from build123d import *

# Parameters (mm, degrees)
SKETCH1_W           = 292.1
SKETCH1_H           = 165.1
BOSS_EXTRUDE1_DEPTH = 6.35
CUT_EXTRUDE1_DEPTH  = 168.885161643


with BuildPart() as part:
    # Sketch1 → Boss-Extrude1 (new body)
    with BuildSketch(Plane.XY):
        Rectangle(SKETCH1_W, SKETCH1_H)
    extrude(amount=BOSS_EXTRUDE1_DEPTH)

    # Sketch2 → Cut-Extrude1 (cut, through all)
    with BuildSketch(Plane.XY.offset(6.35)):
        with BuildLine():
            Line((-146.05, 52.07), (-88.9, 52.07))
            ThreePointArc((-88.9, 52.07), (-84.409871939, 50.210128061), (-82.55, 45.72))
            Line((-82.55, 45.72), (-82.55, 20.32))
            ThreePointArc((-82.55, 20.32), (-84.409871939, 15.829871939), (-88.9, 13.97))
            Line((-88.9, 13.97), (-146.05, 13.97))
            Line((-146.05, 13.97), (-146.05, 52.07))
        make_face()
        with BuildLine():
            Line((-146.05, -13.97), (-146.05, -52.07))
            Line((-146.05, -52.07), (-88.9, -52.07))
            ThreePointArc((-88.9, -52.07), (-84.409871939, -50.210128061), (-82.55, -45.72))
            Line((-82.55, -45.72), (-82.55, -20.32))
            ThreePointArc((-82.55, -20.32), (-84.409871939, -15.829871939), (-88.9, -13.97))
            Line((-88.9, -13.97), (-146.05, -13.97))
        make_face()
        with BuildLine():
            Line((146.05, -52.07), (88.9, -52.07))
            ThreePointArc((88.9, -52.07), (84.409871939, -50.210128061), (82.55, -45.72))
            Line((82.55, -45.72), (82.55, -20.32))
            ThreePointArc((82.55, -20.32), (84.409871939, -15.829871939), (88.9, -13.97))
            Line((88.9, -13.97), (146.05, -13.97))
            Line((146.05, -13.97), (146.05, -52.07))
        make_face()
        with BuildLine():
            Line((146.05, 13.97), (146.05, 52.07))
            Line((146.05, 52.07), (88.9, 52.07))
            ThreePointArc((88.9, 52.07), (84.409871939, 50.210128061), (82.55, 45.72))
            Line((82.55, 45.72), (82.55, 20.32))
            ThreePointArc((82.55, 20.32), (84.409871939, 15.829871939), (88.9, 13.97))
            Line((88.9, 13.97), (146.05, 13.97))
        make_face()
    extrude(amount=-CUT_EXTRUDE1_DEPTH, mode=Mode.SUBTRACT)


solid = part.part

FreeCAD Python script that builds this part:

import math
import FreeCAD as App
import Part
import Sketcher
from FreeCAD import Vector
Q = App.Units.Quantity

doc = App.newDocument("Part")
body = doc.addObject("PartDesign::Body", "Body")

sketch1 = body.newObject("Sketcher::SketchObject", "Sketch")
sketch1.AttachmentSupport = (doc.getObject("XY_Plane"), [""])
sketch1.MapMode = "FlatFace"
sketch1.addGeometry([
    Part.LineSegment(Vector(-146, 83, 0), Vector(-146, -83, 0)),
    Part.LineSegment(Vector(-146, -83, 0), Vector(146, -83, 0)),
    Part.LineSegment(Vector(146, -83, 0), Vector(146, 83, 0)),
    Part.LineSegment(Vector(146, 83, 0), Vector(-146, 83, 0)),
], False)
sketch1.addConstraint([
    Sketcher.Constraint("Coincident", 0, 2, 1, 1),
    Sketcher.Constraint("Coincident", 1, 2, 2, 1),
    Sketcher.Constraint("Coincident", 2, 2, 3, 1),
    Sketcher.Constraint("Coincident", 3, 2, 0, 1),
    Sketcher.Constraint("Vertical", 0),
    Sketcher.Constraint("Horizontal", 1),
    Sketcher.Constraint("Vertical", 2),
    Sketcher.Constraint("Horizontal", 3),
    Sketcher.Constraint("Symmetric", 0, 2, 2, 2, -1, 1),
    Sketcher.Constraint("DistanceX", 1, 1, 1, 2, Q("11.5 in")),
    Sketcher.Constraint("DistanceY", 0, 2, 0, 1, Q("6.5 in")),
])
pad1 = body.newObject("PartDesign::Pad", "Pad")
pad1.Profile = sketch1
pad1.Length = Q("0.25 in")

sketch2 = body.newObject("Sketcher::SketchObject", "Sketch001")
sketch2.AttachmentSupport = (doc.getObject("XY_Plane"), [""])
sketch2.MapMode = "FlatFace"
sketch2.AttachmentOffset = App.Placement(Vector(0, 0, 0.25 * 25.4), App.Rotation())
sketch2.addGeometry([
    Part.LineSegment(Vector(-89, 52, 0), Vector(-146, 52, 0)),
    Part.LineSegment(Vector(-146, 52, 0), Vector(-146, 14, 0)),
    Part.LineSegment(Vector(-146, 14, 0), Vector(-89, 14, 0)),
    Part.ArcOfCircle(Part.Circle(Vector(-89, 20, 0), Vector(0, 0, 1), 6), math.radians(-90), math.radians(0)),
    Part.LineSegment(Vector(-83, 20, 0), Vector(-83, 46, 0)),
    Part.ArcOfCircle(Part.Circle(Vector(-89, 46, 0), Vector(0, 0, 1), 6), math.radians(0), math.radians(90)),
    Part.LineSegment(Vector(-146, -14, 0), Vector(-146, -52, 0)),
    Part.LineSegment(Vector(-146, -52, 0), Vector(-89, -52, 0)),
    Part.ArcOfCircle(Part.Circle(Vector(-89, -46, 0), Vector(0, 0, 1), 6), math.radians(-90), math.radians(0)),
    Part.LineSegment(Vector(-83, -46, 0), Vector(-83, -20, 0)),
    Part.ArcOfCircle(Part.Circle(Vector(-89, -20, 0), Vector(0, 0, 1), 6), math.radians(0), math.radians(90)),
    Part.LineSegment(Vector(-89, -14, 0), Vector(-146, -14, 0)),
    Part.LineSegment(Vector(89, -52, 0), Vector(146, -52, 0)),
    Part.LineSegment(Vector(146, -52, 0), Vector(146, -14, 0)),
    Part.LineSegment(Vector(146, -14, 0), Vector(89, -14, 0)),
    Part.ArcOfCircle(Part.Circle(Vector(89, -20, 0), Vector(0, 0, 1), 6), math.radians(90), math.radians(180)),
    Part.LineSegment(Vector(83, -20, 0), Vector(83, -46, 0)),
    Part.ArcOfCircle(Part.Circle(Vector(89, -46, 0), Vector(0, 0, 1), 6), math.radians(180), math.radians(270)),
    Part.LineSegment(Vector(146, 14, 0), Vector(146, 52, 0)),
    Part.LineSegment(Vector(146, 52, 0), Vector(89, 52, 0)),
    Part.ArcOfCircle(Part.Circle(Vector(89, 46, 0), Vector(0, 0, 1), 6), math.radians(90), math.radians(180)),
    Part.LineSegment(Vector(83, 46, 0), Vector(83, 20, 0)),
    Part.ArcOfCircle(Part.Circle(Vector(89, 20, 0), Vector(0, 0, 1), 6), math.radians(180), math.radians(270)),
    Part.LineSegment(Vector(89, 14, 0), Vector(146, 14, 0)),
], False)
sketch2.addConstraint([
    Sketcher.Constraint("Coincident", 0, 2, 1, 1),
    Sketcher.Constraint("Coincident", 1, 2, 2, 1),
    Sketcher.Constraint("Tangent", 2, 2, 3, 1),
    Sketcher.Constraint("Tangent", 3, 2, 4, 1),
    Sketcher.Constraint("Tangent", 4, 2, 5, 1),
    Sketcher.Constraint("Tangent", 5, 2, 0, 1),
    Sketcher.Constraint("Coincident", 6, 2, 7, 1),
    Sketcher.Constraint("Tangent", 7, 2, 8, 1),
    Sketcher.Constraint("Tangent", 8, 2, 9, 1),
    Sketcher.Constraint("Tangent", 9, 2, 10, 1),
    Sketcher.Constraint("Tangent", 10, 2, 11, 1),
    Sketcher.Constraint("Coincident", 11, 2, 6, 1),
    Sketcher.Constraint("Coincident", 12, 2, 13, 1),
    Sketcher.Constraint("Coincident", 13, 2, 14, 1),
    Sketcher.Constraint("Tangent", 14, 2, 15, 1),
    Sketcher.Constraint("Tangent", 15, 2, 16, 1),
    Sketcher.Constraint("Tangent", 16, 2, 17, 1),
    Sketcher.Constraint("Tangent", 17, 2, 12, 1),
    Sketcher.Constraint("Coincident", 18, 2, 19, 1),
    Sketcher.Constraint("Tangent", 19, 2, 20, 1),
    Sketcher.Constraint("Tangent", 20, 2, 21, 1),
    Sketcher.Constraint("Tangent", 21, 2, 22, 1),
    Sketcher.Constraint("Tangent", 22, 2, 23, 1),
    Sketcher.Constraint("Coincident", 23, 2, 18, 1),
    Sketcher.Constraint("Horizontal", 0),
    Sketcher.Constraint("Vertical", 1),
    Sketcher.Constraint("Horizontal", 2),
    Sketcher.Constraint("Vertical", 4),
    Sketcher.Constraint("Vertical", 6),
    Sketcher.Constraint("Horizontal", 7),
    Sketcher.Constraint("Vertical", 9),
    Sketcher.Constraint("Horizontal", 11),
    Sketcher.Constraint("Horizontal", 12),
    Sketcher.Constraint("Vertical", 13),
    Sketcher.Constraint("Horizontal", 14),
    Sketcher.Constraint("Vertical", 16),
    Sketcher.Constraint("Vertical", 18),
    Sketcher.Constraint("Horizontal", 19),
    Sketcher.Constraint("Vertical", 21),
    Sketcher.Constraint("Horizontal", 23),
    Sketcher.Constraint("Equal", 3, 5),
    Sketcher.Constraint("Equal", 5, 8),
    Sketcher.Constraint("Equal", 8, 10),
    Sketcher.Constraint("Equal", 10, 15),
    Sketcher.Constraint("Equal", 15, 17),
    Sketcher.Constraint("Equal", 17, 20),
    Sketcher.Constraint("Equal", 20, 22),
    Sketcher.Constraint("Symmetric", 3, 3, 15, 3, -1, 1),
    Sketcher.Constraint("Symmetric", 8, 3, 20, 3, -1, 1),
    Sketcher.Constraint("Symmetric", 0, 2, 12, 2, -1, 1),
    Sketcher.Constraint("Symmetric", 11, 2, 23, 2, -1, 1),
    Sketcher.Constraint("Symmetric", 10, 3, 15, 3, -2),
    Sketcher.Constraint("Symmetric", 6, 2, 12, 2, -2),
    Sketcher.Constraint("DistanceY", 4, 1, 4, 2, Q("1 in")),
    Sketcher.Constraint("Radius", 3, Q("0.25 in")),
    Sketcher.Constraint("DistanceX", 10, 3, 15, 3, Q("7 in")),
    Sketcher.Constraint("DistanceX", 8, 2, 12, 2, Q("9 in")),
    Sketcher.Constraint("DistanceY", -1, 1, 3, 3, Q("0.8 in")),
])
pocket1 = body.newObject("PartDesign::Pocket", "Pocket")
pocket1.Profile = sketch2
pocket1.Type = "ThroughAll"

doc.recompute()
